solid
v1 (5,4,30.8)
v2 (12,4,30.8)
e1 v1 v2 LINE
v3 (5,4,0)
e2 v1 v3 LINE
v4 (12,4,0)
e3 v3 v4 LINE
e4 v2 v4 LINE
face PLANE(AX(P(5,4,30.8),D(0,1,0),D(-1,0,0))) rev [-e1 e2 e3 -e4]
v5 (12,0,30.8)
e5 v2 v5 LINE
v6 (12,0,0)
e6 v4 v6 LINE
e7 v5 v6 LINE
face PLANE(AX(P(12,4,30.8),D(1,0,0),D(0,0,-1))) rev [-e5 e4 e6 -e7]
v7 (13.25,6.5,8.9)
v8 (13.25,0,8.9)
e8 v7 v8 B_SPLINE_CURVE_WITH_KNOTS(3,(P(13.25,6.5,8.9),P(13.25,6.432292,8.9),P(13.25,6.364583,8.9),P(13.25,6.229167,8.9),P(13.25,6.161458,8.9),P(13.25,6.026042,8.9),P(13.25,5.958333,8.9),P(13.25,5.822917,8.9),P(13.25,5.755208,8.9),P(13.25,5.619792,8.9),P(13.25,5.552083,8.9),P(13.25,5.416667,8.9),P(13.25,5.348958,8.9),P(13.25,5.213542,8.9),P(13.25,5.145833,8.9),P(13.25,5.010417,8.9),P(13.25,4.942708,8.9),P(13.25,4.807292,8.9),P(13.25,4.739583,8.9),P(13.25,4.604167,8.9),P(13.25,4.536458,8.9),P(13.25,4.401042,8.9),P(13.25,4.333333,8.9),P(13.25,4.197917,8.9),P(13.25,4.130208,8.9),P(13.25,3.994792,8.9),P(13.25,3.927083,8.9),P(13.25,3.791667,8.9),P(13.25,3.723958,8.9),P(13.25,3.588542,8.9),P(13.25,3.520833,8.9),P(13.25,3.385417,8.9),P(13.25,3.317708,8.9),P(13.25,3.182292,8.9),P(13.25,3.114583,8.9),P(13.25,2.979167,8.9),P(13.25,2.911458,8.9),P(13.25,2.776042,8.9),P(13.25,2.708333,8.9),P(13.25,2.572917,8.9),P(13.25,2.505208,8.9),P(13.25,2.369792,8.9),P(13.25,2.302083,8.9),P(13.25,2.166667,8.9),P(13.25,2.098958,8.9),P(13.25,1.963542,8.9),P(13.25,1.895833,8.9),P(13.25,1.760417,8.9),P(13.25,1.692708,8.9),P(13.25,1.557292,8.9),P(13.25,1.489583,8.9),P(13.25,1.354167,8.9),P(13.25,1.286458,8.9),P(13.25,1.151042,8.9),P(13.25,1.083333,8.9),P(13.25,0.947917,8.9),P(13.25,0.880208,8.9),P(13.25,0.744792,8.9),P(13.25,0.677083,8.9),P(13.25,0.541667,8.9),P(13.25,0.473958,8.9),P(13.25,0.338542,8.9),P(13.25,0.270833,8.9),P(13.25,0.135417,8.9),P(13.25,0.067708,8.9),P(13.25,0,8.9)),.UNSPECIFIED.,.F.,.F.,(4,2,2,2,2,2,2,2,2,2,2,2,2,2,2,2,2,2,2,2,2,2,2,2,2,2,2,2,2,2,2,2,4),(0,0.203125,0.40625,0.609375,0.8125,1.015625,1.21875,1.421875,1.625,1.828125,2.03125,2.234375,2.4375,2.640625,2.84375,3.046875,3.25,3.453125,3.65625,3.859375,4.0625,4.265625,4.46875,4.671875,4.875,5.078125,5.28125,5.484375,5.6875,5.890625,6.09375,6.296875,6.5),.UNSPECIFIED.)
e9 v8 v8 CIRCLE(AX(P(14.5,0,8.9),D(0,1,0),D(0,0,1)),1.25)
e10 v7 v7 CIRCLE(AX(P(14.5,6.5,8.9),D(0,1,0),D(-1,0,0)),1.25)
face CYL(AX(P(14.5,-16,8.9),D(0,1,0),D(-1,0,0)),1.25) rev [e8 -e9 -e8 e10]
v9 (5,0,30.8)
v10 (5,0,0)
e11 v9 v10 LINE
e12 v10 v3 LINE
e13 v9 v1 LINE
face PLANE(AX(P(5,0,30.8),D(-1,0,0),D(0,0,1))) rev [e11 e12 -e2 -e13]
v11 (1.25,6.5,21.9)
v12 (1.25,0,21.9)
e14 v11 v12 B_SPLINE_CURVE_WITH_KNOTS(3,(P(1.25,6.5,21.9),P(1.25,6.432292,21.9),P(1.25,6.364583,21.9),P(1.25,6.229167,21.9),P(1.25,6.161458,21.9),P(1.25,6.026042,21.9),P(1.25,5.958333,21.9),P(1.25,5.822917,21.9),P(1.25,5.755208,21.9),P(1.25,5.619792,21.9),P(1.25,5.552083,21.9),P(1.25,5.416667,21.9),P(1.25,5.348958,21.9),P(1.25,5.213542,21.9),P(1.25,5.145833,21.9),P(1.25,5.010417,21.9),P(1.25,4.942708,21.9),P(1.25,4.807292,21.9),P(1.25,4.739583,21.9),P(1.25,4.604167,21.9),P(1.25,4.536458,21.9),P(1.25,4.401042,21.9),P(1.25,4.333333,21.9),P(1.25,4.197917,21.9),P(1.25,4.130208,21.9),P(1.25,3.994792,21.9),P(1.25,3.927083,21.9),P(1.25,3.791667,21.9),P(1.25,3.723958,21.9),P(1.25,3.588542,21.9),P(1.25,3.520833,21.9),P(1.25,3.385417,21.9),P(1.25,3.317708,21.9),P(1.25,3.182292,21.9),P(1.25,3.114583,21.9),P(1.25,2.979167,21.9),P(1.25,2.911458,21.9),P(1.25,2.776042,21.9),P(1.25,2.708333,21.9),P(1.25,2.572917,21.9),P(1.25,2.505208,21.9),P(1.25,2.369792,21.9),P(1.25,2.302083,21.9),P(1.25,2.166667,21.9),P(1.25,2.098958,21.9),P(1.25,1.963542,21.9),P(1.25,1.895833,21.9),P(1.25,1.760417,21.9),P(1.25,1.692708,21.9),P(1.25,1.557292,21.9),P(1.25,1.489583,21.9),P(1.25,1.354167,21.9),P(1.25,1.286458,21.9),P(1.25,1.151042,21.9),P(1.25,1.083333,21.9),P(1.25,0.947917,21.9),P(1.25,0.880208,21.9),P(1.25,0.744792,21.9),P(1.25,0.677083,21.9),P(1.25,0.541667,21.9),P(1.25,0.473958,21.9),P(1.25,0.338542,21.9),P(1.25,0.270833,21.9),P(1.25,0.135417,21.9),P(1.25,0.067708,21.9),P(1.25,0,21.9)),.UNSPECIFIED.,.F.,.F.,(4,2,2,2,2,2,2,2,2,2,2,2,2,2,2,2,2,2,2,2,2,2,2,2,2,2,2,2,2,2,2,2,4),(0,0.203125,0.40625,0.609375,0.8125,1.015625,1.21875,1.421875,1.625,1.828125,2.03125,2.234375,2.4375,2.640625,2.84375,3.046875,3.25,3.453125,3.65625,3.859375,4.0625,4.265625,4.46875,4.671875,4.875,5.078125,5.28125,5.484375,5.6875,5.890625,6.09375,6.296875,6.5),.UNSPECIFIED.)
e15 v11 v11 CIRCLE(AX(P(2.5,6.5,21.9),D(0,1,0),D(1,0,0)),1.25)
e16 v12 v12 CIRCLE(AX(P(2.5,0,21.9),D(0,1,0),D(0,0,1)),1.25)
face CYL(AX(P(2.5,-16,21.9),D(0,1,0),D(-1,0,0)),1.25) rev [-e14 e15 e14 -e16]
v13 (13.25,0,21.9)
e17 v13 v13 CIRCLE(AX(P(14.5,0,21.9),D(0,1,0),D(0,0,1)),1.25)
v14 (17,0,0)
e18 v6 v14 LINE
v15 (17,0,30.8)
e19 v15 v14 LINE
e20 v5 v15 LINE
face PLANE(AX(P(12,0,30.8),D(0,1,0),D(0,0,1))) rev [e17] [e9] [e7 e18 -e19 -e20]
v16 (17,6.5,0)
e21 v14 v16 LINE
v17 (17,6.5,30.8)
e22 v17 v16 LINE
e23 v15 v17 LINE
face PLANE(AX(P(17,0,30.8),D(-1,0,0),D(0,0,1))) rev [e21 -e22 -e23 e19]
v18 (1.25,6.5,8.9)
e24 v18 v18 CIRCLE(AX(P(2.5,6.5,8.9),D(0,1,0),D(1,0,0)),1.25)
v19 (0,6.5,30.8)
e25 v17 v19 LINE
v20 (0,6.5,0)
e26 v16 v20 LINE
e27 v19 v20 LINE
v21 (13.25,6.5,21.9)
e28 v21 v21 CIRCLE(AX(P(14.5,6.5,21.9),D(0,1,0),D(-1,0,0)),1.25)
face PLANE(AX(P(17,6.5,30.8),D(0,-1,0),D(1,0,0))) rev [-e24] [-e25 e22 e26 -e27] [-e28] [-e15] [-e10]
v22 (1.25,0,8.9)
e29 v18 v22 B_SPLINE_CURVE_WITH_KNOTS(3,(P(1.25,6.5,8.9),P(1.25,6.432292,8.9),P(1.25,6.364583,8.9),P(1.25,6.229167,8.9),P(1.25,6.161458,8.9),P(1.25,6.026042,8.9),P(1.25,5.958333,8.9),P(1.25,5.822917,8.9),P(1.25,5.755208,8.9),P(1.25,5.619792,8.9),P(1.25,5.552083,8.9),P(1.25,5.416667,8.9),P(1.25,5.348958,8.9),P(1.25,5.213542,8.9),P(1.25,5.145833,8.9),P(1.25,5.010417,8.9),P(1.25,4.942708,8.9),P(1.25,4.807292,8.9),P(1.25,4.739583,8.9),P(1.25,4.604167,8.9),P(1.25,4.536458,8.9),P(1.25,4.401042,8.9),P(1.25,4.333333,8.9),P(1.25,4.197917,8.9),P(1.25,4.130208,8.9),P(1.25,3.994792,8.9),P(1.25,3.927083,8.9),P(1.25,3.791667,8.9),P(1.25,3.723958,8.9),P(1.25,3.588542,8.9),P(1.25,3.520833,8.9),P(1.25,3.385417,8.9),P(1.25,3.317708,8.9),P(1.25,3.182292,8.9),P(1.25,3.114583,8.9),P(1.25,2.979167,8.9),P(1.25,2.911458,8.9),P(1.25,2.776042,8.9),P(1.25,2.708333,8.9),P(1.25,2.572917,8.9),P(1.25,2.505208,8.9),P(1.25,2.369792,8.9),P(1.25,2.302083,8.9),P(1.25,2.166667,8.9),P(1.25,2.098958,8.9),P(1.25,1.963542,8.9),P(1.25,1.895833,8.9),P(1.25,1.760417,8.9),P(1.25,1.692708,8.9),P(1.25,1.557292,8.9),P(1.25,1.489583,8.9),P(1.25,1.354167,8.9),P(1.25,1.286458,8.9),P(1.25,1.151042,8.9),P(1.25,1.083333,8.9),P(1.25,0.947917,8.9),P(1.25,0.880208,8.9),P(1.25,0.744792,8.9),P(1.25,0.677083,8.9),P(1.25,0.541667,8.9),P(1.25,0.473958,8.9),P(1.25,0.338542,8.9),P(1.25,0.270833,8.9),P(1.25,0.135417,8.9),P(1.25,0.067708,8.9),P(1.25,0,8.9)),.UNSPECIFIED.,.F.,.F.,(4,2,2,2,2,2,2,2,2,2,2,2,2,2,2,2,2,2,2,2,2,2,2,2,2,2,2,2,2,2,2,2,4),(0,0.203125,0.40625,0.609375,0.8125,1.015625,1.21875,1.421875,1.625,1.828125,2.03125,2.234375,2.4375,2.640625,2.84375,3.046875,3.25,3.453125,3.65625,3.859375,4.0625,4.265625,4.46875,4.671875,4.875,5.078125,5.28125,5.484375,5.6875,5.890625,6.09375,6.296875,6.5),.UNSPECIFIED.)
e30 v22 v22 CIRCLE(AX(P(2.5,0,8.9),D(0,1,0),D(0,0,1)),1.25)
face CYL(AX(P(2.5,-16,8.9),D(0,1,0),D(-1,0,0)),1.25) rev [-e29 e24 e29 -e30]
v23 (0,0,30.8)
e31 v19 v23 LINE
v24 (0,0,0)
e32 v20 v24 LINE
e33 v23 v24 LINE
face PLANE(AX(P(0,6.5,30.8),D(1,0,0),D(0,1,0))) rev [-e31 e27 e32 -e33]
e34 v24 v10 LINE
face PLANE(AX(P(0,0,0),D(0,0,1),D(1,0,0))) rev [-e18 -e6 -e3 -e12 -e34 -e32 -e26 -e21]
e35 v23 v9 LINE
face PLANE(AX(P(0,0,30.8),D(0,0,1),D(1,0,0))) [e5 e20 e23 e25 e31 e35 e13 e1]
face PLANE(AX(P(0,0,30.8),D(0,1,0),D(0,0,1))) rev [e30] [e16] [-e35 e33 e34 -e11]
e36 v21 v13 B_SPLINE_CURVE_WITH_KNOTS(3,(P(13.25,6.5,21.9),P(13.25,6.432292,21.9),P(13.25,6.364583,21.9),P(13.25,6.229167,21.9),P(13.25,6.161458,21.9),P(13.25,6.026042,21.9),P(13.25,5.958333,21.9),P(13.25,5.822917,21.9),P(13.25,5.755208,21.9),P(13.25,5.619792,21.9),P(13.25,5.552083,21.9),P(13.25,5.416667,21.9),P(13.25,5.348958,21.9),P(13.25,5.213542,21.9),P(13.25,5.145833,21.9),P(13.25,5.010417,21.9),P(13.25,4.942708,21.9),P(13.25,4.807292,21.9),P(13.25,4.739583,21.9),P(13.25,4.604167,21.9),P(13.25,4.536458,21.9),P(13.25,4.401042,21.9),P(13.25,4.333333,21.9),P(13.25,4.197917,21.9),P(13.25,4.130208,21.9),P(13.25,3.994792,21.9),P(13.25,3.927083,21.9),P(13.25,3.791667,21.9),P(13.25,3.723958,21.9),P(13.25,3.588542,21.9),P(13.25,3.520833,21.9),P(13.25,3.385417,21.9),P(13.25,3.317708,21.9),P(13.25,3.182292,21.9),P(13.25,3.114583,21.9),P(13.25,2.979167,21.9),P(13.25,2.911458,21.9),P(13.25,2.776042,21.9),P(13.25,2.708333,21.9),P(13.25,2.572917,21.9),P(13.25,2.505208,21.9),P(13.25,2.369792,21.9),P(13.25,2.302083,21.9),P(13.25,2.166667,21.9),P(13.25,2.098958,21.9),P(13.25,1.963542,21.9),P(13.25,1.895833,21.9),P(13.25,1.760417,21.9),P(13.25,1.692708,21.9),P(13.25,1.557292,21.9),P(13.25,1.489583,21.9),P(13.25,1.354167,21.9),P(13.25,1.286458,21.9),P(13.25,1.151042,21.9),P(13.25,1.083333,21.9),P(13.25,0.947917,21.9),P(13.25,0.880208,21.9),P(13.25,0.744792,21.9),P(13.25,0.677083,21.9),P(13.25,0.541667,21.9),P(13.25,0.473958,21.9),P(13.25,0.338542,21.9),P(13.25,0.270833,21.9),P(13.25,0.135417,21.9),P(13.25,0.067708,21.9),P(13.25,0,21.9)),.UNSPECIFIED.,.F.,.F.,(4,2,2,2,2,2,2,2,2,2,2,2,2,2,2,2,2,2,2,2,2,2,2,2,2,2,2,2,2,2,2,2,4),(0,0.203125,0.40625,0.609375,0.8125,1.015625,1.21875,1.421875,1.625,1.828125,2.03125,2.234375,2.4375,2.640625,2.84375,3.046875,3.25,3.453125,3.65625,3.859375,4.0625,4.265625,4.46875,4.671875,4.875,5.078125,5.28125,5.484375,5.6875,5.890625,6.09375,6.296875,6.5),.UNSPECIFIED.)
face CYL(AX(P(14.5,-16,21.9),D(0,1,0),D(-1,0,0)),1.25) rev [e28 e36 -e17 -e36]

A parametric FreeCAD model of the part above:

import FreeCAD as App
import Part
import Sketcher
from FreeCAD import Vector


def add_polygon(sketch, points):
    """Adds a closed chain of lines whose ends are joined by coincident constraints."""
    first, n = sketch.GeometryCount, len(points)
    for a, b in zip(points, points[1:] + points[:1]):
        sketch.addGeometry(Part.LineSegment(App.Vector(*a, 0), App.Vector(*b, 0)), False)
    for i in range(n):
        sketch.addConstraint(Sketcher.Constraint("Coincident", first + i, 2, first + (i + 1) % n, 1))

doc = App.newDocument("Part")
body = doc.addObject("PartDesign::Body", "Body")

sketch1 = body.newObject("Sketcher::SketchObject", "Sketch")
sketch1.AttachmentSupport = (doc.getObject("XY_Plane"), [""])
sketch1.MapMode = "FlatFace"
add_polygon(sketch1, [(0, 0), (5, 0), (5, 4), (12, 4), (12, 0), (17, 0), (17, 6.5), (0, 6.5)])
sketch1.addConstraint([
    Sketcher.Constraint("Horizontal", 0),
    Sketcher.Constraint("Vertical", 1),
    Sketcher.Constraint("Horizontal", 2),
    Sketcher.Constraint("Vertical", 3),
    Sketcher.Constraint("Horizontal", 4),
    Sketcher.Constraint("Vertical", 5),
    Sketcher.Constraint("Horizontal", 6),
    Sketcher.Constraint("Vertical", 7),
    Sketcher.Constraint("Coincident", 7, 2, -1, 1),
    Sketcher.Constraint("PointOnObject", 3, 2, -1),
    Sketcher.Constraint("Equal", 0, 4),
    Sketcher.Constraint("DistanceX", 0, 1, 0, 2, 5.0),
    Sketcher.Constraint("DistanceX", 2, 1, 2, 2, 7.0),
    Sketcher.Constraint("DistanceY", 1, 1, 1, 2, 4.0),
    Sketcher.Constraint("DistanceY", 5, 1, 5, 2, 6.5),
])
pad1 = body.newObject("PartDesign::Pad", "Pad")
pad1.Profile = sketch1
pad1.Length = 30.8

sketch2 = body.newObject("Sketcher::SketchObject", "Sketch001")
sketch2.AttachmentSupport = (doc.getObject("XZ_Plane"), [""])
sketch2.MapMode = "FlatFace"
sketch2.AttachmentOffset = App.Placement(Vector(0, 0, -6.5), App.Rotation())
sketch2.addGeometry([
    Part.Circle(Vector(14.5, 8.9, 0), Vector(0, 0, 1), 1.2),
    Part.Circle(Vector(14.5, 21.9, 0), Vector(0, 0, 1), 1.2),
    Part.Circle(Vector(2.5, 21.9, 0), Vector(0, 0, 1), 1.2),
    Part.Circle(Vector(2.5, 8.9, 0), Vector(0, 0, 1), 1.2),
], False)
sketch2.addConstraint([
    Sketcher.Constraint("Equal", 0, 1),
    Sketcher.Constraint("Equal", 1, 2),
    Sketcher.Constraint("Equal", 2, 3),
    Sketcher.Constraint("Horizontal", 1, 3, 2, 3),
    Sketcher.Constraint("Horizontal", 0, 3, 3, 3),
    Sketcher.Constraint("Vertical", 0, 3, 1, 3),
    Sketcher.Constraint("Vertical", 2, 3, 3, 3),
    Sketcher.Constraint("Diameter", 0, 2.5),
    Sketcher.Constraint("DistanceY", 0, 3, 1, 3, 13.0),
    Sketcher.Constraint("DistanceX", 2, 3, 1, 3, 12.0),
    Sketcher.Constraint("DistanceX", -1, 1, 0, 3, 14.5),
    Sketcher.Constraint("DistanceY", -1, 1, 0, 3, 8.9),
])
pocket1 = body.newObject("PartDesign::Pocket", "Pocket")
pocket1.Profile = sketch2
pocket1.Length = 22.5
pocket1.Reversed = True

doc.recompute()
